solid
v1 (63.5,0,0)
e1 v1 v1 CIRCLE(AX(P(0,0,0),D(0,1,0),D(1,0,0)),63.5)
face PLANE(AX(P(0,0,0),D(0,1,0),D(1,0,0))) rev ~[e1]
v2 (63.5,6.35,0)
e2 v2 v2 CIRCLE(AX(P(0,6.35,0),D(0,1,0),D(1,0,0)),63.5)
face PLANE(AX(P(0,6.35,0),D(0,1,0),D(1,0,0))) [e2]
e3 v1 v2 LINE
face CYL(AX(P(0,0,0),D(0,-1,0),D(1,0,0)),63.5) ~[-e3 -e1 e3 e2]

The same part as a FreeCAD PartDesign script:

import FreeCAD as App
import Part
import Sketcher
from FreeCAD import Vector
Q = App.Units.Quantity

doc = App.newDocument("Part")
params = doc.addObject("Spreadsheet::Sheet", "Params")
for row, (alias, value) in enumerate([
    ("sketch1_diameter", "5 in"),
    ("pad1_length", "0.25 in"),
], start=1):
    params.set(f"A{row}", alias)
    params.set(f"B{row}", "=" + value)
    params.setAlias(f"B{row}", alias)

body = doc.addObject("PartDesign::Body", "Body")

# Sketch on XZ plane
sketch1 = body.newObject("Sketcher::SketchObject", "Sketch")
sketch1.AttachmentSupport = (doc.getObject("XZ_Plane"), [""])
sketch1.MapMode = "FlatFace"
sketch1.addGeometry(Part.Circle(Vector(0, 0, 0), Vector(0, 0, 1), 63.5), False)
sketch1.addConstraint([
    Sketcher.Constraint("Coincident", 0, 3, -1, 1),
    Sketcher.Constraint("Diameter", 0, Q("5 in")),
])
sketch1.setExpression("Constraints[1]", "Params.sketch1_diameter")
pad1 = body.newObject("PartDesign::Pad", "Pad")
pad1.Profile = sketch1
pad1.setExpression("Length", "Params.pad1_length")
pad1.Reversed = True

doc.recompute()
